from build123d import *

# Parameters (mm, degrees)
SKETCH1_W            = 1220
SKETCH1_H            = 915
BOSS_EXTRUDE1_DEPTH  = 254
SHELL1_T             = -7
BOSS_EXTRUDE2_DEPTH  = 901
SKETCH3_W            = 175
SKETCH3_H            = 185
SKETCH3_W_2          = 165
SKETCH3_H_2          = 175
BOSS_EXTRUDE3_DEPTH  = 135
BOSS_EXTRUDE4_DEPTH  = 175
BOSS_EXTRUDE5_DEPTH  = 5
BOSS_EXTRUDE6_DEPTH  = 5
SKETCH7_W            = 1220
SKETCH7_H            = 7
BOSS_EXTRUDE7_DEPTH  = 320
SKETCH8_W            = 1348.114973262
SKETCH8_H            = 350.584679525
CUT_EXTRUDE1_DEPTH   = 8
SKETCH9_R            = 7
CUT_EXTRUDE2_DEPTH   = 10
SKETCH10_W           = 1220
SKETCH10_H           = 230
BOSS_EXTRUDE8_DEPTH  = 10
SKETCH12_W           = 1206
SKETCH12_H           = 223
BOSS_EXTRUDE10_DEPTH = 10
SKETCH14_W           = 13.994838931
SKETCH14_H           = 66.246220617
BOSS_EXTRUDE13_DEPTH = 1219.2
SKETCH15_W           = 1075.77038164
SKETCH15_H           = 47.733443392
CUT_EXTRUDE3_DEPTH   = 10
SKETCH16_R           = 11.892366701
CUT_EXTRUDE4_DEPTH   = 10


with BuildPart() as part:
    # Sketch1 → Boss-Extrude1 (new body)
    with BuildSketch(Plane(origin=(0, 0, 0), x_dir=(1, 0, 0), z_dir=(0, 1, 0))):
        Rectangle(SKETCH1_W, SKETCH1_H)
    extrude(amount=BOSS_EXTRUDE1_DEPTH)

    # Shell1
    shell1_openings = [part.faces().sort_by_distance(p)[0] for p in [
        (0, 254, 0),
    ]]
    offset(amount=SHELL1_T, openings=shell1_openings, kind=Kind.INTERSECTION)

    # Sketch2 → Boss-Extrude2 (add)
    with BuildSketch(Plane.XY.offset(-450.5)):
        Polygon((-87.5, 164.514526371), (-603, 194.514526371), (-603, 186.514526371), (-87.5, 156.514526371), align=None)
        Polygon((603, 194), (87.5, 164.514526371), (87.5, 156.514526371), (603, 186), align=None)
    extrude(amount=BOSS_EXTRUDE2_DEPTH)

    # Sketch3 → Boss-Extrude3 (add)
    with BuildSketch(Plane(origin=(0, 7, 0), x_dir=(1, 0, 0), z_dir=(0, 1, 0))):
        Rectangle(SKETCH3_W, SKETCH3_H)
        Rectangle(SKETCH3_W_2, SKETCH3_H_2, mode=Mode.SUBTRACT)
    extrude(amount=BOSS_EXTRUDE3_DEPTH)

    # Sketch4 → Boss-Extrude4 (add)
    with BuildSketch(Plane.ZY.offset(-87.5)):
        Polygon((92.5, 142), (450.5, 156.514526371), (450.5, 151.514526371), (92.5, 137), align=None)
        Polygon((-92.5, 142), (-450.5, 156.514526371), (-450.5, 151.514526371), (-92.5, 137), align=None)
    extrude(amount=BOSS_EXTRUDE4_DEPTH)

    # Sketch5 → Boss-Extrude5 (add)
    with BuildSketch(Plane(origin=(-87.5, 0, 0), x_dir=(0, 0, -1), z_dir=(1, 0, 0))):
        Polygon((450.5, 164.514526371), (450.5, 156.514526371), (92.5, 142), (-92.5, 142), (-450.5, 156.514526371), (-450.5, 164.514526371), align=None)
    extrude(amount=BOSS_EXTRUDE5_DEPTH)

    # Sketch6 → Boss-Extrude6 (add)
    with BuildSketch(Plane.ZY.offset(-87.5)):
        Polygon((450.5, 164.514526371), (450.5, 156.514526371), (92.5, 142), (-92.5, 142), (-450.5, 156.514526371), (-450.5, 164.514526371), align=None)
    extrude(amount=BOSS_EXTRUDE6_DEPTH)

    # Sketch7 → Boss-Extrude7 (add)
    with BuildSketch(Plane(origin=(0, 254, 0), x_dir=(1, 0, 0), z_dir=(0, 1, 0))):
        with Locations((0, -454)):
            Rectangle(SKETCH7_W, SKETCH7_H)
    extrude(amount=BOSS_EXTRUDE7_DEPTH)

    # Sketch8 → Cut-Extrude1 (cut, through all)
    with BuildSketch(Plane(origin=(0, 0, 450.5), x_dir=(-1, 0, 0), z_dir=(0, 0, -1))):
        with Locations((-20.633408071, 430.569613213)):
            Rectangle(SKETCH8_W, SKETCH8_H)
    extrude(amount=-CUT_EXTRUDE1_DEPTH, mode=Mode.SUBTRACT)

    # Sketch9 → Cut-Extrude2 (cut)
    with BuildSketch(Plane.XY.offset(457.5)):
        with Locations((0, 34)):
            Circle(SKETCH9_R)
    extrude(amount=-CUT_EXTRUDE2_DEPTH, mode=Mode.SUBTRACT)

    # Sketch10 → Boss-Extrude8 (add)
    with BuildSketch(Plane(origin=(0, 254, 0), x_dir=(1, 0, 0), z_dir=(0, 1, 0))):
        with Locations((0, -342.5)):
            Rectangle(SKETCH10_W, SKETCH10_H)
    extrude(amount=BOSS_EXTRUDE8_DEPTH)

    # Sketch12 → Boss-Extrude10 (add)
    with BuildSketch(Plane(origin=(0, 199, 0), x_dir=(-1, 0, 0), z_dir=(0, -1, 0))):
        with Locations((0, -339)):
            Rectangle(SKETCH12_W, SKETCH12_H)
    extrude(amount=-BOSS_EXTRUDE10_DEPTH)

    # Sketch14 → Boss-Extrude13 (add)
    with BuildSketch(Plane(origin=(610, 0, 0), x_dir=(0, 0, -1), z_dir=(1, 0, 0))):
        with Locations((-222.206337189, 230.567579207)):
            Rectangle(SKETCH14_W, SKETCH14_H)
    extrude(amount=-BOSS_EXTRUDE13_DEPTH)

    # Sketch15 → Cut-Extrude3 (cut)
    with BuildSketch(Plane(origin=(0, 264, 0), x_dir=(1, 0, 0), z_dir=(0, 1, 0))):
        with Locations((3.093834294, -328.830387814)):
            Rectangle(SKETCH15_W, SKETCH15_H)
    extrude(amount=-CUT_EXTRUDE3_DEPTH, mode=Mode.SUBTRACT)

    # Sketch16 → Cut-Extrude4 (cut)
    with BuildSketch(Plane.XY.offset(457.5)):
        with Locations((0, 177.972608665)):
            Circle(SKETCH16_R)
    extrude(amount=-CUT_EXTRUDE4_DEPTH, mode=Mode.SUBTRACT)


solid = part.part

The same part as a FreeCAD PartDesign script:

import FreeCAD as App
import Part
import Sketcher
from FreeCAD import Vector
Q = App.Units.Quantity


def faces_at(feature, points):
    """Names of the faces that lie closest to the given points."""
    faces = feature.Shape.Faces
    near = lambda p: min(range(len(faces)), key=lambda i: faces[i].distToShape(Part.Vertex(*p))[0])
    return sorted({f"Face{near(p) + 1}" for p in points})


def add_polygon(sketch, points):
    """Adds a closed chain of lines whose ends are joined by coincident constraints."""
    first, n = sketch.GeometryCount, len(points)
    for a, b in zip(points, points[1:] + points[:1]):
        sketch.addGeometry(Part.LineSegment(App.Vector(*a, 0), App.Vector(*b, 0)), False)
    for i in range(n):
        sketch.addConstraint(Sketcher.Constraint("Coincident", first + i, 2, first + (i + 1) % n, 1))

doc = App.newDocument("Part")
params = doc.addObject("Spreadsheet::Sheet", "Params")
for row, (alias, value) in enumerate([
    ("sketch1_width", "1220 mm"),
    ("sketch1_height", "915 mm"),
    ("pad1_length", "254 mm"),
    ("thickness_wall", "7 mm"),
    ("sketch2_height", "8 mm"),
    ("pad2_length", "901 mm"),
    ("sketch3_width", "175 mm"),
    ("sketch3_width2", "165 mm"),
    ("sketch3_height", "185 mm"),
    ("pad3_length", "135 mm"),
    ("sketch4_width", "5 mm"),
    ("pad4_length", "175 mm"),
    ("sketch5_width", "8 mm"),
    ("sketch5_height", "901 mm"),
    ("sketch5_height2", "185 mm"),
    ("pad5_length", "5 mm"),
    ("sketch6_width", "8 mm"),
    ("sketch6_height", "901 mm"),
    ("sketch6_height2", "185 mm"),
    ("pad6_length", "5 mm"),
    ("sketch7_width", "1220 mm"),
    ("sketch7_height", "7 mm"),
    ("pad7_length", "320 mm"),
    ("sketch9_diameter", "14 mm"),
    ("pocket2_length", "10 mm"),
    ("sketch10_width", "1220 mm"),
    ("sketch10_height", "230 mm"),
    ("pad8_length", "10 mm"),
    ("sketch11_width", "1206 mm"),
    ("sketch11_height", "223 mm"),
    ("pad9_length", "10 mm"),
    ("pad10_length", "1219.2 mm"),
    ("pocket3_length", "10 mm"),
    ("pocket4_length", "10 mm"),
], start=1):
    params.set(f"A{row}", alias)
    params.set(f"B{row}", "=" + value)
    params.setAlias(f"B{row}", alias)

body = doc.addObject("PartDesign::Body", "Body")

# Sketch on XZ plane
sketch1 = body.newObject("Sketcher::SketchObject", "Sketch")
sketch1.AttachmentSupport = (doc.getObject("XZ_Plane"), [""])
sketch1.MapMode = "FlatFace"
add_polygon(sketch1, [(-610, -458), (-610, 458), (610, 458), (610, -458)])  # lines 0-3
sketch1.addConstraint(Sketcher.Constraint("Vertical", 0))
sketch1.addConstraint(Sketcher.Constraint("Horizontal", 1))
sketch1.addConstraint(Sketcher.Constraint("Vertical", 2))
sketch1.addConstraint(Sketcher.Constraint("Horizontal", 3))
sketch1.addConstraint(Sketcher.Constraint("Symmetric", 0, 2, 2, 2, -1, 1))
sketch1.addConstraint(Sketcher.Constraint("DistanceX", 1, 1, 1, 2, Q("1220 mm")))
sketch1.addConstraint(Sketcher.Constraint("DistanceY", 0, 1, 0, 2, Q("915 mm")))
sketch1.setExpression("Constraints[9]", "Params.sketch1_width")
sketch1.setExpression("Constraints[10]", "Params.sketch1_height")
pad1 = body.newObject("PartDesign::Pad", "Pad")
pad1.Profile = sketch1
pad1.setExpression("Length", "Params.pad1_length")
pad1.Reversed = True
doc.recompute()

thickness = body.newObject("PartDesign::Thickness", "Thickness")
thickness.Base = (pad1, faces_at(pad1, [(0, 254, 0)]))
thickness.setExpression("Value", "Params.thickness_wall")
thickness.Reversed = True
thickness.Join = "Intersection"

# Sketch on XY plane
sketch2 = body.newObject("Sketcher::SketchObject", "Sketch001")
sketch2.AttachmentSupport = (doc.getObject("XY_Plane"), [""])
sketch2.MapMode = "FlatFace"
sketch2.AttachmentOffset = App.Placement(Vector(0, 0, -450.5), App.Rotation())
add_polygon(sketch2, [(-88, 165), (-603, 195), (-603, 187), (-88, 157)])  # lines 0-3
add_polygon(sketch2, [(603, 194), (88, 165), (88, 157), (603, 186)])  # lines 4-7
sketch2.addConstraint(Sketcher.Constraint("Vertical", 1))
sketch2.addConstraint(Sketcher.Constraint("Vertical", 3))
sketch2.addConstraint(Sketcher.Constraint("Vertical", 5))
sketch2.addConstraint(Sketcher.Constraint("Vertical", 7))
sketch2.addConstraint(Sketcher.Constraint("Symmetric", 3, 2, 4, 2, -2))
sketch2.addConstraint(Sketcher.Constraint("Parallel", 0, 2))
sketch2.addConstraint(Sketcher.Constraint("Parallel", 4, 6))
sketch2.addConstraint(Sketcher.Constraint("Horizontal", 2, 2, 5, 2))
sketch2.addConstraint(Sketcher.Constraint("DistanceY", 1, 2, 1, 1, Q("8 mm")))
sketch2.addConstraint(Sketcher.Constraint("DistanceX", 0, 2, -1, 1, Q("603 mm")))
sketch2.addConstraint(Sketcher.Constraint("DistanceX", -1, 1, 6, 2, Q("603 mm")))
sketch2.addConstraint(Sketcher.Constraint("DistanceY", -1, 1, 6, 2, Q("186 mm")))
sketch2.addConstraint(Sketcher.Constraint("DistanceY", 2, 2, 1, 2, Q("30 mm")))
sketch2.addConstraint(Sketcher.Constraint("DistanceX", 3, 2, 4, 2, Q("175 mm")))
sketch2.addConstraint(Sketcher.Constraint("Distance", 4, Q("516.342564 mm")))
sketch2.setExpression("Constraints[16]", "Params.sketch2_height")
pad2 = body.newObject("PartDesign::Pad", "Pad001")
pad2.Profile = sketch2
pad2.setExpression("Length", "Params.pad2_length")

# Sketch on XZ plane
sketch3 = body.newObject("Sketcher::SketchObject", "Sketch002")
sketch3.AttachmentSupport = (doc.getObject("XZ_Plane"), [""])
sketch3.MapMode = "FlatFace"
sketch3.AttachmentOffset = App.Placement(Vector(0, 0, -7), App.Rotation())
add_polygon(sketch3, [(-88, -92), (-88, 92), (88, 92), (88, -92)])  # lines 0-3
add_polygon(sketch3, [(82, 88), (-82, 88), (-82, -88), (82, -88)])  # lines 4-7
sketch3.addConstraint(Sketcher.Constraint("Vertical", 0))
sketch3.addConstraint(Sketcher.Constraint("Horizontal", 1))
sketch3.addConstraint(Sketcher.Constraint("Vertical", 2))
sketch3.addConstraint(Sketcher.Constraint("Horizontal", 3))
sketch3.addConstraint(Sketcher.Constraint("Horizontal", 4))
sketch3.addConstraint(Sketcher.Constraint("Vertical", 5))
sketch3.addConstraint(Sketcher.Constraint("Horizontal", 6))
sketch3.addConstraint(Sketcher.Constraint("Vertical", 7))
sketch3.addConstraint(Sketcher.Constraint("Symmetric", 0, 2, 2, 2, -1, 1))
sketch3.addConstraint(Sketcher.Constraint("Symmetric", 4, 2, 6, 2, -1, 1))
sketch3.addConstraint(Sketcher.Constraint("Equal", 3, 5))
sketch3.addConstraint(Sketcher.Constraint("DistanceX", 1, 1, 1, 2, Q("175 mm")))
sketch3.addConstraint(Sketcher.Constraint("DistanceX", 4, 2, 4, 1, Q("165 mm")))
sketch3.addConstraint(Sketcher.Constraint("DistanceY", 0, 1, 0, 2, Q("185 mm")))
sketch3.setExpression("Constraints[19]", "Params.sketch3_width")
sketch3.setExpression("Constraints[20]", "Params.sketch3_width2")
sketch3.setExpression("Constraints[21]", "Params.sketch3_height")
pad3 = body.newObject("PartDesign::Pad", "Pad002")
pad3.Profile = sketch3
pad3.setExpression("Length", "Params.pad3_length")
pad3.Reversed = True

# Sketch on YZ plane
sketch4 = body.newObject("Sketcher::SketchObject", "Sketch003")
sketch4.AttachmentSupport = (doc.getObject("YZ_Plane"), [""])
sketch4.MapMode = "FlatFace"
sketch4.AttachmentOffset = App.Placement(Vector(0, 0, 87.5), App.Rotation())
add_polygon(sketch4, [(157, 450), (142, 92), (137, 92), (152, 450)])  # lines 0-3
add_polygon(sketch4, [(142, -92), (157, -450), (152, -450), (137, -92)])  # lines 4-7
sketch4.addConstraint(Sketcher.Constraint("Horizontal", 1))
sketch4.addConstraint(Sketcher.Constraint("Horizontal", 3))
sketch4.addConstraint(Sketcher.Constraint("Horizontal", 5))
sketch4.addConstraint(Sketcher.Constraint("Horizontal", 7))
sketch4.addConstraint(Sketcher.Constraint("Symmetric", 3, 2, 4, 2, -1))
sketch4.addConstraint(Sketcher.Constraint("Symmetric", 1, 2, 6, 2, -1))
sketch4.addConstraint(Sketcher.Constraint("Parallel", 0, 2))
sketch4.addConstraint(Sketcher.Constraint("Parallel", 4, 6))
sketch4.addConstraint(Sketcher.Constraint("Vertical", 2, 2, 5, 2))
sketch4.addConstraint(Sketcher.Constraint("DistanceX", 1, 2, 1, 1, Q("5 mm")))
sketch4.addConstraint(Sketcher.Constraint("DistanceX", -1, 1, 0, 2, Q("142 mm")))
sketch4.addConstraint(Sketcher.Constraint("DistanceY", 0, 2, 2, 2, Q("358 mm")))
sketch4.addConstraint(Sketcher.Constraint("DistanceY", 4, 2, 0, 2, Q("543 mm")))
sketch4.addConstraint(Sketcher.Constraint("Distance", 0, Q("358.294113 mm")))
sketch4.setExpression("Constraints[17]", "Params.sketch4_width")
pad4 = body.newObject("PartDesign::Pad", "Pad003")
pad4.Profile = sketch4
pad4.setExpression("Length", "Params.pad4_length")
pad4.Reversed = True

# Sketch on YZ plane
sketch5 = body.newObject("Sketcher::SketchObject", "Sketch004")
sketch5.AttachmentSupport = (doc.getObject("YZ_Plane"), [""])
sketch5.MapMode = "FlatFace"
sketch5.AttachmentOffset = App.Placement(Vector(0, 0, -87.5), App.Rotation())
add_polygon(sketch5, [(157, -450), (165, -450), (165, 450), (157, 450), (142, 92), (142, -92)])  # lines 0-5
sketch5.addConstraint(Sketcher.Constraint("Horizontal", 0))
sketch5.addConstraint(Sketcher.Constraint("Vertical", 1))
sketch5.addConstraint(Sketcher.Constraint("Horizontal", 2))
sketch5.addConstraint(Sketcher.Constraint("Vertical", 4))
sketch5.addConstraint(Sketcher.Constraint("Symmetric", 2, 2, 5, 2, -1))
sketch5.addConstraint(Sketcher.Constraint("Equal", 3, 5))
sketch5.addConstraint(Sketcher.Constraint("DistanceX", 0, 1, 0, 2, Q("8 mm")))
sketch5.addConstraint(Sketcher.Constraint("DistanceY", 1, 1, 1, 2, Q("901 mm")))
sketch5.addConstraint(Sketcher.Constraint("DistanceY", 4, 2, 4, 1, Q("185 mm")))
sketch5.addConstraint(Sketcher.Constraint("DistanceX", -1, 1, 3, 2, Q("142 mm")))
sketch5.addConstraint(Sketcher.Constraint("Distance", 3, Q("358.294113 mm")))
sketch5.setExpression("Constraints[12]", "Params.sketch5_width")
sketch5.setExpression("Constraints[13]", "Params.sketch5_height")
sketch5.setExpression("Constraints[14]", "Params.sketch5_height2")
pad5 = body.newObject("PartDesign::Pad", "Pad004")
pad5.Profile = sketch5
pad5.setExpression("Length", "Params.pad5_length")

# Sketch on YZ plane
sketch6 = body.newObject("Sketcher::SketchObject", "Sketch005")
sketch6.AttachmentSupport = (doc.getObject("YZ_Plane"), [""])
sketch6.MapMode = "FlatFace"
sketch6.AttachmentOffset = App.Placement(Vector(0, 0, 87.5), App.Rotation())
add_polygon(sketch6, [(157, 450), (165, 450), (165, -450), (157, -450), (142, -92), (142, 92)])  # lines 0-5
sketch6.addConstraint(Sketcher.Constraint("Horizontal", 0))
sketch6.addConstraint(Sketcher.Constraint("Vertical", 1))
sketch6.addConstraint(Sketcher.Constraint("Horizontal", 2))
sketch6.addConstraint(Sketcher.Constraint("Vertical", 4))
sketch6.addConstraint(Sketcher.Constraint("Symmetric", 2, 2, 5, 2, -1))
sketch6.addConstraint(Sketcher.Constraint("Equal", 3, 5))
sketch6.addConstraint(Sketcher.Constraint("DistanceX", 0, 1, 0, 2, Q("8 mm")))
sketch6.addConstraint(Sketcher.Constraint("DistanceY", 1, 2, 1, 1, Q("901 mm")))
sketch6.addConstraint(Sketcher.Constraint("DistanceY", 4, 1, 4, 2, Q("185 mm")))
sketch6.addConstraint(Sketcher.Constraint("DistanceX", -1, 1, 3, 2, Q("142 mm")))
sketch6.addConstraint(Sketcher.Constraint("Distance", 3, Q("358.294113 mm")))
sketch6.setExpression("Constraints[12]", "Params.sketch6_width")
sketch6.setExpression("Constraints[13]", "Params.sketch6_height")
sketch6.setExpression("Constraints[14]", "Params.sketch6_height2")
pad6 = body.newObject("PartDesign::Pad", "Pad005")
pad6.Profile = sketch6
pad6.setExpression("Length", "Params.pad6_length")
pad6.Reversed = True

# Sketch on XZ plane
sketch7 = body.newObject("Sketcher::SketchObject", "Sketch006")
sketch7.AttachmentSupport = (doc.getObject("XZ_Plane"), [""])
sketch7.MapMode = "FlatFace"
sketch7.AttachmentOffset = App.Placement(Vector(0, 0, -254), App.Rotation())
add_polygon(sketch7, [(-610, 450), (-610, 458), (610, 458), (610, 450)])  # lines 0-3
sketch7.addConstraint(Sketcher.Constraint("Vertical", 0))
sketch7.addConstraint(Sketcher.Constraint("Horizontal", 1))
sketch7.addConstraint(Sketcher.Constraint("Vertical", 2))
sketch7.addConstraint(Sketcher.Constraint("Horizontal", 3))
sketch7.addConstraint(Sketcher.Constraint("DistanceX", 1, 1, 1, 2, Q("1220 mm")))
sketch7.addConstraint(Sketcher.Constraint("DistanceY", 0, 1, 0, 2, Q("7 mm")))
sketch7.addConstraint(Sketcher.Constraint("DistanceX", 0, 2, -1, 1, Q("610 mm")))
sketch7.addConstraint(Sketcher.Constraint("DistanceY", -1, 1, 0, 2, Q("457.5 mm")))
sketch7.setExpression("Constraints[8]", "Params.sketch7_width")
sketch7.setExpression("Constraints[9]", "Params.sketch7_height")
pad7 = body.newObject("PartDesign::Pad", "Pad006")
pad7.Profile = sketch7
pad7.setExpression("Length", "Params.pad7_length")
pad7.Reversed = True

# Sketch on XY plane
sketch8 = body.newObject("Sketcher::SketchObject", "Sketch007")
sketch8.AttachmentSupport = (doc.getObject("XY_Plane"), [""])
sketch8.MapMode = "FlatFace"
sketch8.AttachmentOffset = App.Placement(Vector(0, 0, 450.5), App.Rotation())
add_polygon(sketch8, [(695, 606), (695, 255), (-653, 255), (-653, 606)])  # lines 0-3
sketch8.addConstraint(Sketcher.Constraint("Vertical", 0))
sketch8.addConstraint(Sketcher.Constraint("Horizontal", 1))
sketch8.addConstraint(Sketcher.Constraint("Vertical", 2))
sketch8.addConstraint(Sketcher.Constraint("Horizontal", 3))
sketch8.addConstraint(Sketcher.Constraint("DistanceY", 0, 2, 0, 1, Q("350.58468 mm")))
sketch8.addConstraint(Sketcher.Constraint("DistanceX", 1, 2, 1, 1, Q("1348.114973 mm")))
sketch8.addConstraint(Sketcher.Constraint("DistanceX", 1, 2, -1, 1, Q("653.424079 mm")))
sketch8.addConstraint(Sketcher.Constraint("DistanceY", -1, 1, 0, 2, Q("255.277273 mm")))
pocket1 = body.newObject("PartDesign::Pocket", "Pocket")
pocket1.Profile = sketch8
pocket1.Type = "ThroughAll"
pocket1.Reversed = True

# Sketch on XY plane
sketch9 = body.newObject("Sketcher::SketchObject", "Sketch008")
sketch9.AttachmentSupport = (doc.getObject("XY_Plane"), [""])
sketch9.MapMode = "FlatFace"
sketch9.AttachmentOffset = App.Placement(Vector(0, 0, 457.5), App.Rotation())
sketch9.addGeometry(Part.Circle(Vector(0, 34, 0), Vector(0, 0, 1), 7), False)
sketch9.addConstraint(Sketcher.Constraint("PointOnObject", 0, 3, -2))
sketch9.addConstraint(Sketcher.Constraint("Diameter", 0, Q("14 mm")))
sketch9.addConstraint(Sketcher.Constraint("DistanceY", -1, 1, 0, 3, Q("34 mm")))
sketch9.setExpression("Constraints[1]", "Params.sketch9_diameter")
pocket2 = body.newObject("PartDesign::Pocket", "Pocket001")
pocket2.Profile = sketch9
pocket2.setExpression("Length", "Params.pocket2_length")

# Sketch on XZ plane
sketch10 = body.newObject("Sketcher::SketchObject", "Sketch009")
sketch10.AttachmentSupport = (doc.getObject("XZ_Plane"), [""])
sketch10.MapMode = "FlatFace"
sketch10.AttachmentOffset = App.Placement(Vector(0, 0, -254), App.Rotation())
add_polygon(sketch10, [(-610, 228), (-610, 458), (610, 458), (610, 228)])  # lines 0-3
sketch10.addConstraint(Sketcher.Constraint("Vertical", 0))
sketch10.addConstraint(Sketcher.Constraint("Horizontal", 1))
sketch10.addConstraint(Sketcher.Constraint("Vertical", 2))
sketch10.addConstraint(Sketcher.Constraint("Horizontal", 3))
sketch10.addConstraint(Sketcher.Constraint("DistanceX", 1, 1, 1, 2, Q("1220 mm")))
sketch10.addConstraint(Sketcher.Constraint("DistanceY", 0, 1, 0, 2, Q("230 mm")))
sketch10.addConstraint(Sketcher.Constraint("DistanceX", 0, 2, -1, 1, Q("610 mm")))
sketch10.addConstraint(Sketcher.Constraint("DistanceY", -1, 1, 0, 2, Q("457.5 mm")))
sketch10.setExpression("Constraints[8]", "Params.sketch10_width")
sketch10.setExpression("Constraints[9]", "Params.sketch10_height")
pad8 = body.newObject("PartDesign::Pad", "Pad007")
pad8.Profile = sketch10
pad8.setExpression("Length", "Params.pad8_length")
pad8.Reversed = True

# Sketch on XZ plane
sketch11 = body.newObject("Sketcher::SketchObject", "Sketch010")
sketch11.AttachmentSupport = (doc.getObject("XZ_Plane"), [""])
sketch11.MapMode = "FlatFace"
sketch11.AttachmentOffset = App.Placement(Vector(0, 0, -199), App.Rotation())
add_polygon(sketch11, [(603, 228), (603, 450), (-603, 450), (-603, 228)])  # lines 0-3
sketch11.addConstraint(Sketcher.Constraint("Vertical", 0))
sketch11.addConstraint(Sketcher.Constraint("Horizontal", 1))
sketch11.addConstraint(Sketcher.Constraint("Vertical", 2))
sketch11.addConstraint(Sketcher.Constraint("Horizontal", 3))
sketch11.addConstraint(Sketcher.Constraint("DistanceX", 1, 2, 1, 1, Q("1206 mm")))
sketch11.addConstraint(Sketcher.Constraint("DistanceY", 0, 1, 0, 2, Q("223 mm")))
sketch11.addConstraint(Sketcher.Constraint("DistanceX", -1, 1, 0, 2, Q("603 mm")))
sketch11.addConstraint(Sketcher.Constraint("DistanceY", -1, 1, 0, 2, Q("450.5 mm")))
sketch11.setExpression("Constraints[8]", "Params.sketch11_width")
sketch11.setExpression("Constraints[9]", "Params.sketch11_height")
pad9 = body.newObject("PartDesign::Pad", "Pad008")
pad9.Profile = sketch11
pad9.setExpression("Length", "Params.pad9_length")
pad9.Reversed = True

# Sketch on YZ plane
sketch12 = body.newObject("Sketcher::SketchObject", "Sketch011")
sketch12.AttachmentSupport = (doc.getObject("YZ_Plane"), [""])
sketch12.MapMode = "FlatFace"
sketch12.AttachmentOffset = App.Placement(Vector(0, 0, 610), App.Rotation())
add_polygon(sketch12, [(264, 229), (197, 229), (197, 215), (264, 215)])  # lines 0-3
sketch12.addConstraint(Sketcher.Constraint("Horizontal", 0))
sketch12.addConstraint(Sketcher.Constraint("Vertical", 1))
sketch12.addConstraint(Sketcher.Constraint("Horizontal", 2))
sketch12.addConstraint(Sketcher.Constraint("Vertical", 3))
sketch12.addConstraint(Sketcher.Constraint("DistanceX", 0, 2, 0, 1, Q("66.246221 mm")))
sketch12.addConstraint(Sketcher.Constraint("DistanceY", 1, 2, 1, 1, Q("13.994839 mm")))
sketch12.addConstraint(Sketcher.Constraint("DistanceX", -1, 1, 0, 2, Q("197.444469 mm")))
sketch12.addConstraint(Sketcher.Constraint("DistanceY", -1, 1, 0, 2, Q("229.203757 mm")))
pad10 = body.newObject("PartDesign::Pad", "Pad009")
pad10.Profile = sketch12
pad10.setExpression("Length", "Params.pad10_length")
pad10.Reversed = True

# Sketch on XZ plane
sketch13 = body.newObject("Sketcher::SketchObject", "Sketch012")
sketch13.AttachmentSupport = (doc.getObject("XZ_Plane"), [""])
sketch13.MapMode = "FlatFace"
sketch13.AttachmentOffset = App.Placement(Vector(0, 0, -264), App.Rotation())
add_polygon(sketch13, [(-535, 305), (-535, 353), (541, 353), (541, 305)])  # lines 0-3
sketch13.addConstraint(Sketcher.Constraint("Vertical", 0))
sketch13.addConstraint(Sketcher.Constraint("Horizontal", 1))
sketch13.addConstraint(Sketcher.Constraint("Vertical", 2))
sketch13.addConstraint(Sketcher.Constraint("Horizontal", 3))
sketch13.addConstraint(Sketcher.Constraint("DistanceX", 1, 1, 1, 2, Q("1075.770382 mm")))
sketch13.addConstraint(Sketcher.Constraint("DistanceY", 0, 1, 0, 2, Q("47.733443 mm")))
sketch13.addConstraint(Sketcher.Constraint("DistanceY", -1, 1, 0, 2, Q("352.69711 mm")))
sketch13.addConstraint(Sketcher.Constraint("DistanceX", 0, 2, -1, 1, Q("534.791357 mm")))
pocket3 = body.newObject("PartDesign::Pocket", "Pocket002")
pocket3.Profile = sketch13
pocket3.setExpression("Length", "Params.pocket3_length")
pocket3.Reversed = True

# Sketch on XY plane
sketch14 = body.newObject("Sketcher::SketchObject", "Sketch013")
sketch14.AttachmentSupport = (doc.getObject("XY_Plane"), [""])
sketch14.MapMode = "FlatFace"
sketch14.AttachmentOffset = App.Placement(Vector(0, 0, 457.5), App.Rotation())
sketch14.addGeometry(Part.Circle(Vector(0, 178, 0), Vector(0, 0, 1), 12), False)
sketch14.addConstraint(Sketcher.Constraint("PointOnObject", 0, 3, -2))
sketch14.addConstraint(Sketcher.Constraint("Diameter", 0, Q("23.784733 mm")))
sketch14.addConstraint(Sketcher.Constraint("DistanceY", -1, 1, 0, 3, Q("177.972609 mm")))
pocket4 = body.newObject("PartDesign::Pocket", "Pocket003")
pocket4.Profile = sketch14
pocket4.setExpression("Length", "Params.pocket4_length")

doc.recompute()
